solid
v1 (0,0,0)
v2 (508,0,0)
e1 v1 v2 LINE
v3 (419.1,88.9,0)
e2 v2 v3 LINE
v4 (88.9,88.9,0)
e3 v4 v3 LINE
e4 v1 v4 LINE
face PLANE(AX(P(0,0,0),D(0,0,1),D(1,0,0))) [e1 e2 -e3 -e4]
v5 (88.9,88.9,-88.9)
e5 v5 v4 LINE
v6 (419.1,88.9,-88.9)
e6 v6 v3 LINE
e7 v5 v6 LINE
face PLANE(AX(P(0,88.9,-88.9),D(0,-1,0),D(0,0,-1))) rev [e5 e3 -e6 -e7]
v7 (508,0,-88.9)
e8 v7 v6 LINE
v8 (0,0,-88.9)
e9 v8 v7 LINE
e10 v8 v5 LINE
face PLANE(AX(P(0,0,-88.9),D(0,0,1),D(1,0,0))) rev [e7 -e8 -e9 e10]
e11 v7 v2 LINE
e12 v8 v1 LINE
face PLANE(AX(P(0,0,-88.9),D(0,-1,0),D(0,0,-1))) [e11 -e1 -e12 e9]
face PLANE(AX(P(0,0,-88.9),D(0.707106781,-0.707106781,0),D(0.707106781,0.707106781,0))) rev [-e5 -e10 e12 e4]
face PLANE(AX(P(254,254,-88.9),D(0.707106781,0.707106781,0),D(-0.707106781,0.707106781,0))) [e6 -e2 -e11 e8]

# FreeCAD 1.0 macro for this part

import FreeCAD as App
import Part
import Sketcher
from FreeCAD import Vector
Q = App.Units.Quantity

doc = App.newDocument("Part")
body = doc.addObject("PartDesign::Body", "Body")

# Sketch on XY plane
sketch1 = body.newObject("Sketcher::SketchObject", "Sketch")
sketch1.AttachmentSupport = (doc.getObject("XY_Plane"), [""])
sketch1.MapMode = "FlatFace"
sketch1.addGeometry(Part.LineSegment(Vector(0, 0, 0), Vector(508, 0, 0)), False)
sketch1.addGeometry(Part.LineSegment(Vector(508, 0, 0), Vector(419, 89, 0)), False)
sketch1.addGeometry(Part.LineSegment(Vector(419, 89, 0), Vector(89, 89, 0)), False)
sketch1.addGeometry(Part.LineSegment(Vector(89, 89, 0), Vector(0, 0, 0)), False)
sketch1.addConstraint(Sketcher.Constraint("Coincident", 0, 2, 1, 1))
sketch1.addConstraint(Sketcher.Constraint("Coincident", 1, 2, 2, 1))
sketch1.addConstraint(Sketcher.Constraint("Coincident", 2, 2, 3, 1))
sketch1.addConstraint(Sketcher.Constraint("Coincident", 3, 2, 0, 1))
sketch1.addConstraint(Sketcher.Constraint("Horizontal", 0))
sketch1.addConstraint(Sketcher.Constraint("Horizontal", 2))
sketch1.addConstraint(Sketcher.Constraint("Coincident", 3, 2, -1, 1))
sketch1.addConstraint(Sketcher.Constraint("Perpendicular", 1, 3))
sketch1.addConstraint(Sketcher.Constraint("Equal", 1, 3))
sketch1.addConstraint(Sketcher.Constraint("DistanceX", 0, 1, 0, 2, Q("20 in")))
sketch1.addConstraint(Sketcher.Constraint("DistanceX", 2, 2, 2, 1, Q("13 in")))
pad1 = body.newObject("PartDesign::Pad", "Pad")
pad1.Profile = sketch1
pad1.Length = Q("3.5 in")
pad1.Reversed = True

doc.recompute()
